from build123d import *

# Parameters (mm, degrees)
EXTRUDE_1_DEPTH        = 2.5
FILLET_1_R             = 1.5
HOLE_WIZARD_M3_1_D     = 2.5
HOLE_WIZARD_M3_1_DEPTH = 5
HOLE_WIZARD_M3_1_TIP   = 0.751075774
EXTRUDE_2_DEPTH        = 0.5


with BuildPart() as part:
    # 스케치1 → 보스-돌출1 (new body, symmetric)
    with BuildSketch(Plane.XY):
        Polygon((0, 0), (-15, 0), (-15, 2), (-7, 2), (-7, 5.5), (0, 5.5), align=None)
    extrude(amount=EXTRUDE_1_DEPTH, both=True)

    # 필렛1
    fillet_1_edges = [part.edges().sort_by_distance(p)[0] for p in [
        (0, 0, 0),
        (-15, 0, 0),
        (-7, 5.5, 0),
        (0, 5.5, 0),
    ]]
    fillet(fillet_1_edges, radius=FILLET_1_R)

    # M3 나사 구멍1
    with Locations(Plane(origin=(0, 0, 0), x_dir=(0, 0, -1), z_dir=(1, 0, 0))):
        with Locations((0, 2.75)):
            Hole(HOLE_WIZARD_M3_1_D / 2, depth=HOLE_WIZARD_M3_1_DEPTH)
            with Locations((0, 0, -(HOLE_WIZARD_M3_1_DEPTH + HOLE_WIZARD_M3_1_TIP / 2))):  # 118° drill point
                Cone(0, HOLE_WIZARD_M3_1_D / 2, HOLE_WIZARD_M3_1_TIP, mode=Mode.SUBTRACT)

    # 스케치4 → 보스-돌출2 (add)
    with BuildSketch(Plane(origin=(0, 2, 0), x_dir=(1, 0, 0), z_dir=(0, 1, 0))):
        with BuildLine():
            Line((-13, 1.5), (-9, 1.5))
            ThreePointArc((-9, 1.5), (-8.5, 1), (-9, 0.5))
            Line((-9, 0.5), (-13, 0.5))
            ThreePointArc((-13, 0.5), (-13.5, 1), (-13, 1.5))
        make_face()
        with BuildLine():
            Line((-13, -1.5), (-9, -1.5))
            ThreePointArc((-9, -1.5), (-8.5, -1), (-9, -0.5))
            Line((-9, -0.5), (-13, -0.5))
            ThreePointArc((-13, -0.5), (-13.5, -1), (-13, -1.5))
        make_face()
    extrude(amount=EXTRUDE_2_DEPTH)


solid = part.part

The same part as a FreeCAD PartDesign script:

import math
import FreeCAD as App
import Part
import Sketcher
from FreeCAD import Vector


def edges_at(feature, points):
    """Names of the edges that pass closest to the given points."""
    edges = feature.Shape.Edges
    near = lambda p: min(range(len(edges)), key=lambda i: edges[i].distToShape(Part.Vertex(*p))[0])
    return sorted({f"Edge{near(p) + 1}" for p in points})

doc = App.newDocument("Part")
params = doc.addObject("Spreadsheet::Sheet", "Params")
for row, (alias, value) in enumerate([
    ("sketch1_width", "15 mm"),
    ("sketch1_width2", "7 mm"),
    ("sketch1_height", "2 mm"),
    ("sketch1_height2", "5.5 mm"),
    ("pad1_length", "5 mm"),
    ("fillet_radius", "1.5 mm"),
    ("sketch2_diameter", "2.5 mm"),
    ("hole_diameter", "2.5 mm"),
    ("hole_depth", "5 mm"),
    ("sketch3_radius", "0.5 mm"),
    ("sketch3_width", "4 mm"),
    ("pad2_length", "0.5 mm"),
], start=1):
    params.set(f"A{row}", alias)
    params.set(f"B{row}", "=" + value)
    params.setAlias(f"B{row}", alias)

body = doc.addObject("PartDesign::Body", "Body")

sketch1 = body.newObject("Sketcher::SketchObject", "Sketch")
sketch1.AttachmentSupport = (doc.getObject("XY_Plane"), [""])
sketch1.MapMode = "FlatFace"
sketch1.addGeometry(Part.LineSegment(Vector(-15, 0, 0), Vector(0, 0, 0)), False)
sketch1.addGeometry(Part.LineSegment(Vector(0, 0, 0), Vector(0, 5.5, 0)), False)
sketch1.addGeometry(Part.LineSegment(Vector(0, 5.5, 0), Vector(-7, 5.5, 0)), False)
sketch1.addGeometry(Part.LineSegment(Vector(-7, 5.5, 0), Vector(-7, 2, 0)), False)
sketch1.addGeometry(Part.LineSegment(Vector(-7, 2, 0), Vector(-15, 2, 0)), False)
sketch1.addGeometry(Part.LineSegment(Vector(-15, 2, 0), Vector(-15, 0, 0)), False)
sketch1.addConstraint(Sketcher.Constraint("Coincident", 0, 2, 1, 1))
sketch1.addConstraint(Sketcher.Constraint("Coincident", 1, 2, 2, 1))
sketch1.addConstraint(Sketcher.Constraint("Coincident", 2, 2, 3, 1))
sketch1.addConstraint(Sketcher.Constraint("Coincident", 3, 2, 4, 1))
sketch1.addConstraint(Sketcher.Constraint("Coincident", 4, 2, 5, 1))
sketch1.addConstraint(Sketcher.Constraint("Coincident", 5, 2, 0, 1))
sketch1.addConstraint(Sketcher.Constraint("Horizontal", 0))
sketch1.addConstraint(Sketcher.Constraint("Vertical", 1))
sketch1.addConstraint(Sketcher.Constraint("Horizontal", 2))
sketch1.addConstraint(Sketcher.Constraint("Vertical", 3))
sketch1.addConstraint(Sketcher.Constraint("Horizontal", 4))
sketch1.addConstraint(Sketcher.Constraint("Vertical", 5))
sketch1.addConstraint(Sketcher.Constraint("Coincident", 0, 2, -1, 1))
sketch1.addConstraint(Sketcher.Constraint("DistanceX", 0, 1, 0, 2, 15.0))
sketch1.addConstraint(Sketcher.Constraint("DistanceX", 2, 2, 2, 1, 7.0))
sketch1.addConstraint(Sketcher.Constraint("DistanceY", 5, 2, 5, 1, 2.0))
sketch1.addConstraint(Sketcher.Constraint("DistanceY", 1, 1, 1, 2, 5.5))
sketch1.setExpression("Constraints[13]", "Params.sketch1_width")
sketch1.setExpression("Constraints[14]", "Params.sketch1_width2")
sketch1.setExpression("Constraints[15]", "Params.sketch1_height")
sketch1.setExpression("Constraints[16]", "Params.sketch1_height2")
pad1 = body.newObject("PartDesign::Pad", "Pad")
pad1.Profile = sketch1
pad1.setExpression("Length", "Params.pad1_length")
pad1.Midplane = True
doc.recompute()

fillet = body.newObject("PartDesign::Fillet", "Fillet")
fillet.Base = (pad1, edges_at(pad1, [
    (0, 0, 0),
    (-15, 0, 0),
    (-7, 5.5, 0),
    (0, 5.5, 0),
]))
fillet.setExpression("Radius", "Params.fillet_radius")

sketch2 = body.newObject("Sketcher::SketchObject", "Sketch001")
sketch2.AttachmentSupport = (doc.getObject("YZ_Plane"), [""])
sketch2.MapMode = "FlatFace"
sketch2.addGeometry(Part.Circle(Vector(2.8, 0, 0), Vector(0, 0, 1), 1.2), False)
sketch2.addConstraint(Sketcher.Constraint("PointOnObject", 0, 3, -1))
sketch2.addConstraint(Sketcher.Constraint("Diameter", 0, 2.5))
sketch2.addConstraint(Sketcher.Constraint("DistanceX", -1, 1, 0, 3, 2.75))
sketch2.setExpression("Constraints[1]", "Params.sketch2_diameter")
doc.recompute()
hole = body.newObject("PartDesign::Hole", "Hole")
hole.Profile = sketch2
hole.ThreadType = "None"
hole.setExpression("Diameter", "Params.hole_diameter")
hole.DepthType = "Dimension"
hole.setExpression("Depth", "Params.hole_depth")
hole.DrillPoint = "Angled"
hole.DrillPointAngle = 118

sketch3 = body.newObject("Sketcher::SketchObject", "Sketch002")
sketch3.AttachmentSupport = (doc.getObject("XZ_Plane"), [""])
sketch3.MapMode = "FlatFace"
sketch3.AttachmentOffset = App.Placement(Vector(0, 0, -2), App.Rotation())
sketch3.addGeometry(Part.LineSegment(Vector(-9, -1.5, 0), Vector(-13, -1.5, 0)), False)
sketch3.addGeometry(Part.ArcOfCircle(Part.Circle(Vector(-13, -1, 0), Vector(0, 0, 1), 0.5), math.radians(90), math.radians(270)), False)
sketch3.addGeometry(Part.LineSegment(Vector(-13, -0.5, 0), Vector(-9, -0.5, 0)), False)
sketch3.addGeometry(Part.ArcOfCircle(Part.Circle(Vector(-9, -1, 0), Vector(0, 0, 1), 0.5), math.radians(-90), math.radians(90)), False)
sketch3.addGeometry(Part.LineSegment(Vector(-13, 1.5, 0), Vector(-9, 1.5, 0)), False)
sketch3.addGeometry(Part.ArcOfCircle(Part.Circle(Vector(-9, 1, 0), Vector(0, 0, 1), 0.5), math.radians(-90), math.radians(90)), False)
sketch3.addGeometry(Part.LineSegment(Vector(-9, 0.5, 0), Vector(-13, 0.5, 0)), False)
sketch3.addGeometry(Part.ArcOfCircle(Part.Circle(Vector(-13, 1, 0), Vector(0, 0, 1), 0.5), math.radians(90), math.radians(270)), False)
sketch3.addConstraint(Sketcher.Constraint("Tangent", 0, 2, 1, 2))
sketch3.addConstraint(Sketcher.Constraint("Tangent", 1, 1, 2, 1))
sketch3.addConstraint(Sketcher.Constraint("Tangent", 2, 2, 3, 2))
sketch3.addConstraint(Sketcher.Constraint("Tangent", 3, 1, 0, 1))
sketch3.addConstraint(Sketcher.Constraint("Tangent", 4, 2, 5, 2))
sketch3.addConstraint(Sketcher.Constraint("Tangent", 5, 1, 6, 1))
sketch3.addConstraint(Sketcher.Constraint("Tangent", 6, 2, 7, 2))
sketch3.addConstraint(Sketcher.Constraint("Tangent", 7, 1, 4, 1))
sketch3.addConstraint(Sketcher.Constraint("Horizontal", 0))
sketch3.addConstraint(Sketcher.Constraint("Horizontal", 2))
sketch3.addConstraint(Sketcher.Constraint("Horizontal", 4))
sketch3.addConstraint(Sketcher.Constraint("Horizontal", 6))
sketch3.addConstraint(Sketcher.Constraint("Equal", 3, 5))
sketch3.addConstraint(Sketcher.Constraint("Symmetric", 3, 3, 5, 3, -1))
sketch3.addConstraint(Sketcher.Constraint("Vertical", 1, 3, 7, 3))
sketch3.addConstraint(Sketcher.Constraint("Radius", 1, 0.5))
sketch3.addConstraint(Sketcher.Constraint("DistanceX", 0, 2, 0, 1, 4.0))
sketch3.addConstraint(Sketcher.Constraint("DistanceX", 1, 3, -1, 1, 13.0))
sketch3.addConstraint(Sketcher.Constraint("DistanceY", 1, 3, -1, 1, 1.0))
sketch3.setExpression("Constraints[15]", "Params.sketch3_radius")
sketch3.setExpression("Constraints[16]", "Params.sketch3_width")
pad2 = body.newObject("PartDesign::Pad", "Pad001")
pad2.Profile = sketch3
pad2.setExpression("Length", "Params.pad2_length")
pad2.Reversed = True

doc.recompute()
